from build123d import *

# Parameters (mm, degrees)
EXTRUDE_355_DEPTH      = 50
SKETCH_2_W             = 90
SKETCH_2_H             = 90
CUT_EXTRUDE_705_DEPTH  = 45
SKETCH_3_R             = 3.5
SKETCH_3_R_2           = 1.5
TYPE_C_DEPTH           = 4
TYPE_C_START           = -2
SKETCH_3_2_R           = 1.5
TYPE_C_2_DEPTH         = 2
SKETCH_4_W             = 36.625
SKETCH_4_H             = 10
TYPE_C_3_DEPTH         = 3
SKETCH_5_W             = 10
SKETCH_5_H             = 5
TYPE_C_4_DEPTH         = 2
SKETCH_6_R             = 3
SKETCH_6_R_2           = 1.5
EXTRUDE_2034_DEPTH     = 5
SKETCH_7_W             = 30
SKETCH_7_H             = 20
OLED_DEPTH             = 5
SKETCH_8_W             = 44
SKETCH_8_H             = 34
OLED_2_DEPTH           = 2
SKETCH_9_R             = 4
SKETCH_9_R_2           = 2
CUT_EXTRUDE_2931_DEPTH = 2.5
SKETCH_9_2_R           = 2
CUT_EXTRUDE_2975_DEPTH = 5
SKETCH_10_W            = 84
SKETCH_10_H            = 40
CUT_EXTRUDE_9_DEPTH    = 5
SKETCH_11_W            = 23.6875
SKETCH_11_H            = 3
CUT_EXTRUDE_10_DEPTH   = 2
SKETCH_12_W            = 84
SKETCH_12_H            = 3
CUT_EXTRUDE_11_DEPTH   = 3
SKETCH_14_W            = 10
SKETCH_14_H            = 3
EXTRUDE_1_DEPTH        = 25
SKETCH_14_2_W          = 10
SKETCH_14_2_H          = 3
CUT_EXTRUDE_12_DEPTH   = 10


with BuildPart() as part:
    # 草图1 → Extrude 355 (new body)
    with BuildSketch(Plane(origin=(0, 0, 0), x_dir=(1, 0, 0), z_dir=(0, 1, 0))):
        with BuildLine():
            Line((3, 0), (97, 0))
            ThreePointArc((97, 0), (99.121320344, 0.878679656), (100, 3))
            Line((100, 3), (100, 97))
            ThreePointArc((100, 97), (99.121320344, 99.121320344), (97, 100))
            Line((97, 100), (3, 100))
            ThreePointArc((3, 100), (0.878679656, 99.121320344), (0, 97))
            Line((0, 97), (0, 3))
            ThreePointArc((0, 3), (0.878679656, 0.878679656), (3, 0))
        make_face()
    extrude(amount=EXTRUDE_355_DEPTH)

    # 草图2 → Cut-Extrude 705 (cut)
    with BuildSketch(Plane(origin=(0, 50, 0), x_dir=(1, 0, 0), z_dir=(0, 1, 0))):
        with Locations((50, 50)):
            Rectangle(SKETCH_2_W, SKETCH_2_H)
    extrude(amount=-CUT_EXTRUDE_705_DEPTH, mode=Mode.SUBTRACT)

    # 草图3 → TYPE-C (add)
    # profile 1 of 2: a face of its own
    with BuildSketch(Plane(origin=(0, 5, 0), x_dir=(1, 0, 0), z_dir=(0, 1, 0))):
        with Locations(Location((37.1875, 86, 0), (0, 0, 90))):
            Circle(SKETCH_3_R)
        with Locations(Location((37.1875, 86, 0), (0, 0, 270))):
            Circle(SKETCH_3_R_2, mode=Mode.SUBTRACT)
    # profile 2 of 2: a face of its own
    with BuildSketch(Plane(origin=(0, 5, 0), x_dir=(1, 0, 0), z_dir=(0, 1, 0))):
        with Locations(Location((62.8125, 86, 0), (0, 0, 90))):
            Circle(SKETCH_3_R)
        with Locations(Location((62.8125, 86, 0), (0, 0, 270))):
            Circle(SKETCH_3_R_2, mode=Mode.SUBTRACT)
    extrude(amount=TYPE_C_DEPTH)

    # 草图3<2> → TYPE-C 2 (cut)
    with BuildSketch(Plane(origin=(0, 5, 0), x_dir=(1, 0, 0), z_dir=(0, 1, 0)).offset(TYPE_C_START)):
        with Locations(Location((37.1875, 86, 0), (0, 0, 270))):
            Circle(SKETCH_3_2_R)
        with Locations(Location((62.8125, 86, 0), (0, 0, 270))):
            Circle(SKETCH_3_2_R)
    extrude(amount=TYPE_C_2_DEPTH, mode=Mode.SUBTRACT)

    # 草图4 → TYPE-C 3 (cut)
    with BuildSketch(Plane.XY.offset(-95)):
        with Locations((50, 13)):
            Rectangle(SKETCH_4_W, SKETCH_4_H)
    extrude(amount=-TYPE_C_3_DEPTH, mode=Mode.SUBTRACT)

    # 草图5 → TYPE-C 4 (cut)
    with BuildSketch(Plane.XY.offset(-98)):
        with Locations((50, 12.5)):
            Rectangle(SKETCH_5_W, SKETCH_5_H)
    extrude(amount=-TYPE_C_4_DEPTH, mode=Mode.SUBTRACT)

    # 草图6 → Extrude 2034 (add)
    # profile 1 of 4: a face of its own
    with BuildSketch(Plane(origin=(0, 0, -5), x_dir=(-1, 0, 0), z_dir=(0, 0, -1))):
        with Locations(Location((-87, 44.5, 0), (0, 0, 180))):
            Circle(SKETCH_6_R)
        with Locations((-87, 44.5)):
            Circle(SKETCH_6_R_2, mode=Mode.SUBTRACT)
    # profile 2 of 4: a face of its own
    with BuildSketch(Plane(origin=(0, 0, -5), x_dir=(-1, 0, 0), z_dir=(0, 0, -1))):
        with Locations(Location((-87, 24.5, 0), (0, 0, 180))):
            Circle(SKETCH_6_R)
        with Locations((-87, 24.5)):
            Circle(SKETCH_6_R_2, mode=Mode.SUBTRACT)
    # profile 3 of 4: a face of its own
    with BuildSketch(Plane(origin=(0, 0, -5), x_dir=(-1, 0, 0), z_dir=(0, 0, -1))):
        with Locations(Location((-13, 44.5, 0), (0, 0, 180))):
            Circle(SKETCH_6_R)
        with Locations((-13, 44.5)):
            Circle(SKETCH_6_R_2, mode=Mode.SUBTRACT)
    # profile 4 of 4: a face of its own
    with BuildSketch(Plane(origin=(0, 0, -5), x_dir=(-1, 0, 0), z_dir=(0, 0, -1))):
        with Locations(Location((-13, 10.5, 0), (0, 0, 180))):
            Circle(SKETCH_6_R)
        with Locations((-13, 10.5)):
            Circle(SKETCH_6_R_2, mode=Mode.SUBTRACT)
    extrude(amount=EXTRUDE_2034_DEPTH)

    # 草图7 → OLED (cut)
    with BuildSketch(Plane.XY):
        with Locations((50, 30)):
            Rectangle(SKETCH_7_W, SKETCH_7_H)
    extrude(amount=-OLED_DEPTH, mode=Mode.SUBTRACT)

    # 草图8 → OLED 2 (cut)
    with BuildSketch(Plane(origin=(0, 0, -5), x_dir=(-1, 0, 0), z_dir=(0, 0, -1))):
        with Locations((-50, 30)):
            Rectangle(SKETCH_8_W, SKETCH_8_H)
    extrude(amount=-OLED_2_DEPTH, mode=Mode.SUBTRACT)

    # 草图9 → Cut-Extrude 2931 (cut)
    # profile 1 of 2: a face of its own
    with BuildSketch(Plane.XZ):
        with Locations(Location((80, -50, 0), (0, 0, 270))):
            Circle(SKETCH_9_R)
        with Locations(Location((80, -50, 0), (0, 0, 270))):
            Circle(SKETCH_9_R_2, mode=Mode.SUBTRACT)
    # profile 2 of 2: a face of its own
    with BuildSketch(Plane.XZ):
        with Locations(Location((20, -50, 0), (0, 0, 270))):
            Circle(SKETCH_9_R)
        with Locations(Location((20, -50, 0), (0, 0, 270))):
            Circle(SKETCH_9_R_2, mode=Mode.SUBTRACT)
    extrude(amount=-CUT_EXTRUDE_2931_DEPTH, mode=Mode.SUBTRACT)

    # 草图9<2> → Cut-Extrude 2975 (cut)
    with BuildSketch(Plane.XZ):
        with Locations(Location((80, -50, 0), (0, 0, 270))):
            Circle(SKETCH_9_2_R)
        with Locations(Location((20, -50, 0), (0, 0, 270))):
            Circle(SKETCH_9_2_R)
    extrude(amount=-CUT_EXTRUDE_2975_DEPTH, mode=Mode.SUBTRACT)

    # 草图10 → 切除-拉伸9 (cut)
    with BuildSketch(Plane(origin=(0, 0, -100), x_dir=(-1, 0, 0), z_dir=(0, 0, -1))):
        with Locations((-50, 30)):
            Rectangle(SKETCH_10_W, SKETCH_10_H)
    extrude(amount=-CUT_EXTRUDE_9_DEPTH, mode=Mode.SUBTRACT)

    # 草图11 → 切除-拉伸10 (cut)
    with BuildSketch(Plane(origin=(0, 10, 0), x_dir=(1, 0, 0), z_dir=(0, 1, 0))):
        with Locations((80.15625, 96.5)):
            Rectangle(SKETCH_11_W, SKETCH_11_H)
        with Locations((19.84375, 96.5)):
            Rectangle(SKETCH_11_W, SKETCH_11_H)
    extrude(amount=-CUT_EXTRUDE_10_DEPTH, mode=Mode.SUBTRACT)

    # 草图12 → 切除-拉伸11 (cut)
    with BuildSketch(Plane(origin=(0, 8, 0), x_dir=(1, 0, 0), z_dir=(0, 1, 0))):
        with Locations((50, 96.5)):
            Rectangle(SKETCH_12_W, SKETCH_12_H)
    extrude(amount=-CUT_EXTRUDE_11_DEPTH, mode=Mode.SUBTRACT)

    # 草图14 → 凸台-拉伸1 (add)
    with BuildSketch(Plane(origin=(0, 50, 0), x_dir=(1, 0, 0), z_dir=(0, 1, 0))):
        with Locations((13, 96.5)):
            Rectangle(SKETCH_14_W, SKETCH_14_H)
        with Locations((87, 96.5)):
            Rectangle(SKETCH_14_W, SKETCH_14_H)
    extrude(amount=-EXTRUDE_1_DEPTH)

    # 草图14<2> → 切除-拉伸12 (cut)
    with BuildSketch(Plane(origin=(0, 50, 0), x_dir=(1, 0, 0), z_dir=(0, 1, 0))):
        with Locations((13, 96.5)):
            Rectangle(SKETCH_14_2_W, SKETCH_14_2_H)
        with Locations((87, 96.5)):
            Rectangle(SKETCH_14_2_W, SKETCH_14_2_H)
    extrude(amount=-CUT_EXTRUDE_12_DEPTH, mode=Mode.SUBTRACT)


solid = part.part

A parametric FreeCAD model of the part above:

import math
import FreeCAD as App
import Part
import Sketcher
from FreeCAD import Vector


def add_polygon(sketch, points):
    """Adds a closed chain of lines whose ends are joined by coincident constraints."""
    first, n = sketch.GeometryCount, len(points)
    for a, b in zip(points, points[1:] + points[:1]):
        sketch.addGeometry(Part.LineSegment(App.Vector(*a, 0), App.Vector(*b, 0)), False)
    for i in range(n):
        sketch.addConstraint(Sketcher.Constraint("Coincident", first + i, 2, first + (i + 1) % n, 1))

doc = App.newDocument("Part")
body = doc.addObject("PartDesign::Body", "Body")

# Sketch on XZ plane
sketch1 = body.newObject("Sketcher::SketchObject", "Sketch")
sketch1.AttachmentSupport = (doc.getObject("XZ_Plane"), [""])
sketch1.MapMode = "FlatFace"
sketch1.addGeometry([
    Part.LineSegment(Vector(3, 0, 0), Vector(97, 0, 0)),  # 0
    Part.ArcOfCircle(Part.Circle(Vector(97, -3, 0), Vector(0, 0, 1), 3), math.radians(0), math.radians(90)),  # 1
    Part.LineSegment(Vector(100, -3, 0), Vector(100, -97, 0)),  # 2
    Part.ArcOfCircle(Part.Circle(Vector(97, -97, 0), Vector(0, 0, 1), 3), math.radians(-90), math.radians(0)),  # 3
    Part.LineSegment(Vector(97, -100, 0), Vector(3, -100, 0)),  # 4
    Part.ArcOfCircle(Part.Circle(Vector(3, -97, 0), Vector(0, 0, 1), 3), math.radians(180), math.radians(270)),  # 5
    Part.LineSegment(Vector(0, -97, 0), Vector(0, -3, 0)),  # 6
    Part.ArcOfCircle(Part.Circle(Vector(3, -3, 0), Vector(0, 0, 1), 3), math.radians(90), math.radians(180)),  # 7
], False)
sketch1.addConstraint([
    Sketcher.Constraint("Tangent", 0, 2, 1, 2),
    Sketcher.Constraint("Tangent", 1, 1, 2, 1),
    Sketcher.Constraint("Tangent", 2, 2, 3, 2),
    Sketcher.Constraint("Tangent", 3, 1, 4, 1),
    Sketcher.Constraint("Tangent", 4, 2, 5, 2),
    Sketcher.Constraint("Tangent", 5, 1, 6, 1),
    Sketcher.Constraint("Tangent", 6, 2, 7, 2),
    Sketcher.Constraint("Tangent", 7, 1, 0, 1),
    Sketcher.Constraint("Horizontal", 0),
    Sketcher.Constraint("Vertical", 2),
    Sketcher.Constraint("Horizontal", 4),
    Sketcher.Constraint("Vertical", 6),
    Sketcher.Constraint("Equal", 1, 3),
    Sketcher.Constraint("Equal", 3, 5),
    Sketcher.Constraint("Equal", 5, 7),
    Sketcher.Constraint("PointOnObject", 0, 2, -1),
    Sketcher.Constraint("PointOnObject", 5, 1, -2),
    Sketcher.Constraint("Equal", 4, 2),
    Sketcher.Constraint("Radius", 1, 3.0),
    Sketcher.Constraint("DistanceX", 0, 1, 0, 2, 94.0),
])
pad1 = body.newObject("PartDesign::Pad", "Pad")
pad1.Profile = sketch1
pad1.Length = 50
pad1.Reversed = True

# Sketch on XZ plane
sketch2 = body.newObject("Sketcher::SketchObject", "Sketch001")
sketch2.AttachmentSupport = (doc.getObject("XZ_Plane"), [""])
sketch2.MapMode = "FlatFace"
sketch2.AttachmentOffset = App.Placement(Vector(0, 0, -50), App.Rotation())
add_polygon(sketch2, [(5, -95), (5, -5), (95, -5), (95, -95)])  # lines 0-3
sketch2.addConstraint([
    Sketcher.Constraint("Vertical", 0),
    Sketcher.Constraint("Horizontal", 1),
    Sketcher.Constraint("Vertical", 2),
    Sketcher.Constraint("Horizontal", 3),
    Sketcher.Constraint("Equal", 3, 0),
    Sketcher.Constraint("DistanceX", 1, 1, 1, 2, 90.0),
    Sketcher.Constraint("DistanceX", -1, 1, 0, 2, 5.0),
    Sketcher.Constraint("DistanceY", 0, 2, -1, 1, 5.0),
])
pocket1 = body.newObject("PartDesign::Pocket", "Pocket")
pocket1.Profile = sketch2
pocket1.Length = 45
pocket1.Reversed = True

# Sketch on XZ plane
sketch3 = body.newObject("Sketcher::SketchObject", "Sketch002")
sketch3.AttachmentSupport = (doc.getObject("XZ_Plane"), [""])
sketch3.MapMode = "FlatFace"
sketch3.AttachmentOffset = App.Placement(Vector(0, 0, -5), App.Rotation())
sketch3.addGeometry([
    Part.Circle(Vector(37.1875, -86, 0), Vector(0, 0, 1), 3.5),
    Part.Circle(Vector(37.1875, -86, 0), Vector(0, 0, 1), 1.5),
    Part.Circle(Vector(62.8125, -86, 0), Vector(0, 0, 1), 3.5),
    Part.Circle(Vector(62.8125, -86, 0), Vector(0, 0, 1), 1.5),
], False)
sketch3.addConstraint([
    Sketcher.Constraint("Coincident", 1, 3, 0, 3),
    Sketcher.Constraint("Coincident", 3, 3, 2, 3),
    Sketcher.Constraint("Equal", 0, 2),
    Sketcher.Constraint("Equal", 1, 3),
    Sketcher.Constraint("Horizontal", 1, 3, 2, 3),
    Sketcher.Constraint("Diameter", 0, 7.0),
    Sketcher.Constraint("Diameter", 1, 3.0),
    Sketcher.Constraint("DistanceY", 0, 3, -1, 1, 86.0),
    Sketcher.Constraint("DistanceX", 0, 3, 2, 3, 25.625),
    Sketcher.Constraint("DistanceX", -1, 1, 0, 3, 37.1875),
])
pad2 = body.newObject("PartDesign::Pad", "Pad001")
pad2.Profile = sketch3
pad2.Length = 4
pad2.Reversed = True

# Sketch on XZ plane
sketch4 = body.newObject("Sketcher::SketchObject", "Sketch003")
sketch4.AttachmentSupport = (doc.getObject("XZ_Plane"), [""])
sketch4.MapMode = "FlatFace"
sketch4.AttachmentOffset = App.Placement(Vector(0, 0, -3), App.Rotation())
sketch4.addGeometry([
    Part.Circle(Vector(37.1875, -86, 0), Vector(0, 0, 1), 1.5),
    Part.Circle(Vector(62.8125, -86, 0), Vector(0, 0, 1), 1.5),
], False)
sketch4.addConstraint([
    Sketcher.Constraint("Equal", 0, 1),
    Sketcher.Constraint("Horizontal", 0, 3, 1, 3),
    Sketcher.Constraint("Diameter", 0, 3.0),
    Sketcher.Constraint("DistanceY", 0, 3, -1, 1, 86.0),
    Sketcher.Constraint("DistanceX", 0, 3, 1, 3, 25.625),
    Sketcher.Constraint("DistanceX", -1, 1, 0, 3, 37.1875),
])
pocket2 = body.newObject("PartDesign::Pocket", "Pocket001")
pocket2.Profile = sketch4
pocket2.Length = 2

# Sketch on XY plane
sketch5 = body.newObject("Sketcher::SketchObject", "Sketch004")
sketch5.AttachmentSupport = (doc.getObject("XY_Plane"), [""])
sketch5.MapMode = "FlatFace"
sketch5.AttachmentOffset = App.Placement(Vector(0, 0, -95), App.Rotation())
add_polygon(sketch5, [(31.6875, 18), (31.6875, 8), (68.3125, 8), (68.3125, 18)])  # lines 0-3
sketch5.addConstraint([
    Sketcher.Constraint("Vertical", 0),
    Sketcher.Constraint("Horizontal", 1),
    Sketcher.Constraint("Vertical", 2),
    Sketcher.Constraint("Horizontal", 3),
    Sketcher.Constraint("DistanceY", 0, 2, 0, 1, 10.0),
    Sketcher.Constraint("DistanceY", -1, 1, 0, 2, 8.0),
    Sketcher.Constraint("DistanceX", 1, 1, 1, 2, 36.625),
    Sketcher.Constraint("DistanceX", -1, 1, 0, 2, 31.6875),
])
pocket3 = body.newObject("PartDesign::Pocket", "Pocket002")
pocket3.Profile = sketch5
pocket3.Length = 3

# Sketch on XY plane
sketch6 = body.newObject("Sketcher::SketchObject", "Sketch005")
sketch6.AttachmentSupport = (doc.getObject("XY_Plane"), [""])
sketch6.MapMode = "FlatFace"
sketch6.AttachmentOffset = App.Placement(Vector(0, 0, -98), App.Rotation())
add_polygon(sketch6, [(45, 15), (45, 10), (55, 10), (55, 15)])  # lines 0-3
sketch6.addConstraint([
    Sketcher.Constraint("Vertical", 0),
    Sketcher.Constraint("Horizontal", 1),
    Sketcher.Constraint("Vertical", 2),
    Sketcher.Constraint("Horizontal", 3),
    Sketcher.Constraint("DistanceX", 1, 1, 1, 2, 10.0),
    Sketcher.Constraint("DistanceY", 0, 2, 0, 1, 5.0),
    Sketcher.Constraint("DistanceX", -1, 1, 0, 2, 45.0),
    Sketcher.Constraint("DistanceY", -1, 1, 0, 2, 10.0),
])
pocket4 = body.newObject("PartDesign::Pocket", "Pocket003")
pocket4.Profile = sketch6
pocket4.Length = 2

# Sketch on XY plane
sketch7 = body.newObject("Sketcher::SketchObject", "Sketch006")
sketch7.AttachmentSupport = (doc.getObject("XY_Plane"), [""])
sketch7.MapMode = "FlatFace"
sketch7.AttachmentOffset = App.Placement(Vector(0, 0, -5), App.Rotation())
sketch7.addGeometry([
    Part.Circle(Vector(87, 44.5, 0), Vector(0, 0, 1), 3),  # 0
    Part.Circle(Vector(87, 44.5, 0), Vector(0, 0, 1), 1.5),  # 1
    Part.Circle(Vector(87, 24.5, 0), Vector(0, 0, 1), 3),  # 2
    Part.Circle(Vector(87, 24.5, 0), Vector(0, 0, 1), 1.5),  # 3
    Part.Circle(Vector(13, 44.5, 0), Vector(0, 0, 1), 3),  # 4
    Part.Circle(Vector(13, 44.5, 0), Vector(0, 0, 1), 1.5),  # 5
    Part.Circle(Vector(13, 10.5, 0), Vector(0, 0, 1), 3),  # 6
    Part.Circle(Vector(13, 10.5, 0), Vector(0, 0, 1), 1.5),  # 7
], False)
sketch7.addConstraint([
    Sketcher.Constraint("Coincident", 1, 3, 0, 3),
    Sketcher.Constraint("Coincident", 3, 3, 2, 3),
    Sketcher.Constraint("Coincident", 5, 3, 4, 3),
    Sketcher.Constraint("Coincident", 7, 3, 6, 3),
    Sketcher.Constraint("Equal", 0, 2),
    Sketcher.Constraint("Equal", 1, 3),
    Sketcher.Constraint("Equal", 2, 4),
    Sketcher.Constraint("Equal", 3, 5),
    Sketcher.Constraint("Equal", 4, 6),
    Sketcher.Constraint("Equal", 5, 7),
    Sketcher.Constraint("Horizontal", 1, 3, 4, 3),
    Sketcher.Constraint("Vertical", 1, 3, 2, 3),
    Sketcher.Constraint("Vertical", 5, 3, 6, 3),
    Sketcher.Constraint("Diameter", 0, 6.0),
    Sketcher.Constraint("Diameter", 1, 3.0),
    Sketcher.Constraint("DistanceX", -1, 1, 0, 3, 87.0),
    Sketcher.Constraint("DistanceX", -1, 1, 4, 3, 13.0),
    Sketcher.Constraint("DistanceY", 2, 3, 0, 3, 20.0),
    Sketcher.Constraint("DistanceY", 6, 3, 4, 3, 34.0),
    Sketcher.Constraint("DistanceY", -1, 1, 0, 3, 44.5),
])
pad3 = body.newObject("PartDesign::Pad", "Pad002")
pad3.Profile = sketch7
pad3.Length = 5
pad3.Reversed = True

# Sketch on XY plane
sketch8 = body.newObject("Sketcher::SketchObject", "Sketch007")
sketch8.AttachmentSupport = (doc.getObject("XY_Plane"), [""])
sketch8.MapMode = "FlatFace"
add_polygon(sketch8, [(35, 40), (35, 20), (65, 20), (65, 40)])  # lines 0-3
sketch8.addConstraint([
    Sketcher.Constraint("Vertical", 0),
    Sketcher.Constraint("Horizontal", 1),
    Sketcher.Constraint("Vertical", 2),
    Sketcher.Constraint("Horizontal", 3),
    Sketcher.Constraint("DistanceX", 1, 1, 1, 2, 30.0),
    Sketcher.Constraint("DistanceY", 0, 2, 0, 1, 20.0),
    Sketcher.Constraint("DistanceX", -1, 1, 0, 2, 35.0),
    Sketcher.Constraint("DistanceY", -1, 1, 0, 2, 20.0),
])
pocket5 = body.newObject("PartDesign::Pocket", "Pocket004")
pocket5.Profile = sketch8
pocket5.Length = 5

# Sketch on XY plane
sketch9 = body.newObject("Sketcher::SketchObject", "Sketch008")
sketch9.AttachmentSupport = (doc.getObject("XY_Plane"), [""])
sketch9.MapMode = "FlatFace"
sketch9.AttachmentOffset = App.Placement(Vector(0, 0, -5), App.Rotation())
add_polygon(sketch9, [(72, 47), (72, 13), (28, 13), (28, 47)])  # lines 0-3
sketch9.addConstraint([
    Sketcher.Constraint("Vertical", 0),
    Sketcher.Constraint("Horizontal", 1),
    Sketcher.Constraint("Vertical", 2),
    Sketcher.Constraint("Horizontal", 3),
    Sketcher.Constraint("DistanceX", 1, 2, 1, 1, 44.0),
    Sketcher.Constraint("DistanceY", 0, 2, 0, 1, 34.0),
    Sketcher.Constraint("DistanceX", -1, 1, 0, 2, 72.0),
    Sketcher.Constraint("DistanceY", -1, 1, 0, 2, 13.0),
])
pocket6 = body.newObject("PartDesign::Pocket", "Pocket005")
pocket6.Profile = sketch9
pocket6.Length = 2
pocket6.Reversed = True

# Sketch on XZ plane
sketch10 = body.newObject("Sketcher::SketchObject", "Sketch009")
sketch10.AttachmentSupport = (doc.getObject("XZ_Plane"), [""])
sketch10.MapMode = "FlatFace"
sketch10.addGeometry([
    Part.Circle(Vector(80, -50, 0), Vector(0, 0, 1), 4),
    Part.Circle(Vector(80, -50, 0), Vector(0, 0, 1), 2),
    Part.Circle(Vector(20, -50, 0), Vector(0, 0, 1), 4),
    Part.Circle(Vector(20, -50, 0), Vector(0, 0, 1), 2),
], False)
sketch10.addConstraint([
    Sketcher.Constraint("Coincident", 1, 3, 0, 3),
    Sketcher.Constraint("Coincident", 3, 3, 2, 3),
    Sketcher.Constraint("Equal", 0, 2),
    Sketcher.Constraint("Equal", 1, 3),
    Sketcher.Constraint("Horizontal", 1, 3, 2, 3),
    Sketcher.Constraint("Diameter", 0, 8.0),
    Sketcher.Constraint("Diameter", 1, 4.0),
    Sketcher.Constraint("DistanceX", -1, 1, 0, 3, 80.0),
    Sketcher.Constraint("DistanceY", 0, 3, -1, 1, 50.0),
    Sketcher.Constraint("DistanceX", -1, 1, 2, 3, 20.0),
])
pocket7 = body.newObject("PartDesign::Pocket", "Pocket006")
pocket7.Profile = sketch10
pocket7.Length = 2.5

# Sketch on XZ plane
sketch11 = body.newObject("Sketcher::SketchObject", "Sketch010")
sketch11.AttachmentSupport = (doc.getObject("XZ_Plane"), [""])
sketch11.MapMode = "FlatFace"
sketch11.addGeometry([
    Part.Circle(Vector(80, -50, 0), Vector(0, 0, 1), 2),
    Part.Circle(Vector(20, -50, 0), Vector(0, 0, 1), 2),
], False)
sketch11.addConstraint([
    Sketcher.Constraint("Equal", 0, 1),
    Sketcher.Constraint("Horizontal", 0, 3, 1, 3),
    Sketcher.Constraint("Diameter", 0, 4.0),
    Sketcher.Constraint("DistanceX", -1, 1, 0, 3, 80.0),
    Sketcher.Constraint("DistanceY", 0, 3, -1, 1, 50.0),
    Sketcher.Constraint("DistanceX", -1, 1, 1, 3, 20.0),
])
pocket8 = body.newObject("PartDesign::Pocket", "Pocket007")
pocket8.Profile = sketch11
pocket8.Length = 5

# Sketch on XY plane
sketch12 = body.newObject("Sketcher::SketchObject", "Sketch011")
sketch12.AttachmentSupport = (doc.getObject("XY_Plane"), [""])
sketch12.MapMode = "FlatFace"
sketch12.AttachmentOffset = App.Placement(Vector(0, 0, -100), App.Rotation())
add_polygon(sketch12, [(92, 50), (92, 10), (8, 10), (8, 50)])  # lines 0-3
sketch12.addConstraint([
    Sketcher.Constraint("Vertical", 0),
    Sketcher.Constraint("Horizontal", 1),
    Sketcher.Constraint("Vertical", 2),
    Sketcher.Constraint("Horizontal", 3),
    Sketcher.Constraint("DistanceX", 1, 2, 1, 1, 84.0),
    Sketcher.Constraint("DistanceY", 0, 2, 0, 1, 40.0),
    Sketcher.Constraint("DistanceX", -1, 1, 0, 2, 92.0),
    Sketcher.Constraint("DistanceY", -1, 1, 0, 2, 10.0),
])
pocket9 = body.newObject("PartDesign::Pocket", "Pocket008")
pocket9.Profile = sketch12
pocket9.Length = 5
pocket9.Reversed = True

# Sketch on XZ plane
sketch13 = body.newObject("Sketcher::SketchObject", "Sketch012")
sketch13.AttachmentSupport = (doc.getObject("XZ_Plane"), [""])
sketch13.MapMode = "FlatFace"
sketch13.AttachmentOffset = App.Placement(Vector(0, 0, -10), App.Rotation())
add_polygon(sketch13, [(68.3125, -98), (68.3125, -95), (92, -95), (92, -98)])  # lines 0-3
add_polygon(sketch13, [(8, -98), (8, -95), (31.6875, -95), (31.6875, -98)])  # lines 4-7
sketch13.addConstraint([
    Sketcher.Constraint("Vertical", 0),
    Sketcher.Constraint("Horizontal", 1),
    Sketcher.Constraint("Vertical", 2),
    Sketcher.Constraint("Horizontal", 3),
    Sketcher.Constraint("Vertical", 4),
    Sketcher.Constraint("Horizontal", 5),
    Sketcher.Constraint("Vertical", 6),
    Sketcher.Constraint("Horizontal", 7),
    Sketcher.Constraint("Horizontal", 1, 2, 4, 2),
    Sketcher.Constraint("Horizontal", 3, 2, 6, 2),
    Sketcher.Constraint("Equal", 3, 5),
    Sketcher.Constraint("DistanceY", 0, 1, 0, 2, 3.0),
    Sketcher.Constraint("DistanceY", 0, 2, -1, 1, 95.0),
    Sketcher.Constraint("DistanceX", -1, 1, 1, 2, 92.0),
    Sketcher.Constraint("DistanceX", -1, 1, 4, 2, 8.0),
    Sketcher.Constraint("DistanceX", 1, 1, 1, 2, 23.6875),
])
pocket10 = body.newObject("PartDesign::Pocket", "Pocket009")
pocket10.Profile = sketch13
pocket10.Length = 2
pocket10.Reversed = True

# Sketch on XZ plane
sketch14 = body.newObject("Sketcher::SketchObject", "Sketch013")
sketch14.AttachmentSupport = (doc.getObject("XZ_Plane"), [""])
sketch14.MapMode = "FlatFace"
sketch14.AttachmentOffset = App.Placement(Vector(0, 0, -8), App.Rotation())
add_polygon(sketch14, [(8, -98), (8, -95), (92, -95), (92, -98)])  # lines 0-3
sketch14.addConstraint([
    Sketcher.Constraint("Vertical", 0),
    Sketcher.Constraint("Horizontal", 1),
    Sketcher.Constraint("Vertical", 2),
    Sketcher.Constraint("Horizontal", 3),
    Sketcher.Constraint("DistanceX", 1, 1, 1, 2, 84.0),
    Sketcher.Constraint("DistanceY", 0, 1, 0, 2, 3.0),
    Sketcher.Constraint("DistanceX", -1, 1, 0, 2, 8.0),
    Sketcher.Constraint("DistanceY", 0, 2, -1, 1, 95.0),
])
pocket11 = body.newObject("PartDesign::Pocket", "Pocket010")
pocket11.Profile = sketch14
pocket11.Length = 3
pocket11.Reversed = True

# Sketch on XZ plane
sketch15 = body.newObject("Sketcher::SketchObject", "Sketch014")
sketch15.AttachmentSupport = (doc.getObject("XZ_Plane"), [""])
sketch15.MapMode = "FlatFace"
sketch15.AttachmentOffset = App.Placement(Vector(0, 0, -50), App.Rotation())
add_polygon(sketch15, [(8, -98), (8, -95), (18, -95), (18, -98)])  # lines 0-3
add_polygon(sketch15, [(82, -98), (82, -95), (92, -95), (92, -98)])  # lines 4-7
sketch15.addConstraint([
    Sketcher.Constraint("Vertical", 0),
    Sketcher.Constraint("Horizontal", 1),
    Sketcher.Constraint("Vertical", 2),
    Sketcher.Constraint("Horizontal", 3),
    Sketcher.Constraint("Vertical", 4),
    Sketcher.Constraint("Horizontal", 5),
    Sketcher.Constraint("Vertical", 6),
    Sketcher.Constraint("Horizontal", 7),
    Sketcher.Constraint("Horizontal", 1, 2, 4, 2),
    Sketcher.Constraint("Horizontal", 3, 2, 6, 2),
    Sketcher.Constraint("Equal", 3, 5),
    Sketcher.Constraint("DistanceX", 1, 1, 1, 2, 10.0),
    Sketcher.Constraint("DistanceY", 0, 1, 0, 2, 3.0),
    Sketcher.Constraint("DistanceX", -1, 1, 0, 2, 8.0),
    Sketcher.Constraint("DistanceY", 0, 2, -1, 1, 95.0),
    Sketcher.Constraint("DistanceX", -1, 1, 4, 2, 82.0),
])
pad4 = body.newObject("PartDesign::Pad", "Pad003")
pad4.Profile = sketch15
pad4.Length = 25

# Sketch on XZ plane
sketch16 = body.newObject("Sketcher::SketchObject", "Sketch015")
sketch16.AttachmentSupport = (doc.getObject("XZ_Plane"), [""])
sketch16.MapMode = "FlatFace"
sketch16.AttachmentOffset = App.Placement(Vector(0, 0, -50), App.Rotation())
add_polygon(sketch16, [(8, -98), (8, -95), (18, -95), (18, -98)])  # lines 0-3
add_polygon(sketch16, [(82, -98), (82, -95), (92, -95), (92, -98)])  # lines 4-7
sketch16.addConstraint([
    Sketcher.Constraint("Vertical", 0),
    Sketcher.Constraint("Horizontal", 1),
    Sketcher.Constraint("Vertical", 2),
    Sketcher.Constraint("Horizontal", 3),
    Sketcher.Constraint("Vertical", 4),
    Sketcher.Constraint("Horizontal", 5),
    Sketcher.Constraint("Vertical", 6),
    Sketcher.Constraint("Horizontal", 7),
    Sketcher.Constraint("Horizontal", 1, 2, 4, 2),
    Sketcher.Constraint("Horizontal", 3, 2, 6, 2),
    Sketcher.Constraint("Equal", 3, 5),
    Sketcher.Constraint("DistanceX", 1, 1, 1, 2, 10.0),
    Sketcher.Constraint("DistanceY", 0, 1, 0, 2, 3.0),
    Sketcher.Constraint("DistanceX", -1, 1, 0, 2, 8.0),
    Sketcher.Constraint("DistanceY", 0, 2, -1, 1, 95.0),
    Sketcher.Constraint("DistanceX", -1, 1, 4, 2, 82.0),
])
pocket12 = body.newObject("PartDesign::Pocket", "Pocket011")
pocket12.Profile = sketch16
pocket12.Length = 10
pocket12.Reversed = True

doc.recompute()
